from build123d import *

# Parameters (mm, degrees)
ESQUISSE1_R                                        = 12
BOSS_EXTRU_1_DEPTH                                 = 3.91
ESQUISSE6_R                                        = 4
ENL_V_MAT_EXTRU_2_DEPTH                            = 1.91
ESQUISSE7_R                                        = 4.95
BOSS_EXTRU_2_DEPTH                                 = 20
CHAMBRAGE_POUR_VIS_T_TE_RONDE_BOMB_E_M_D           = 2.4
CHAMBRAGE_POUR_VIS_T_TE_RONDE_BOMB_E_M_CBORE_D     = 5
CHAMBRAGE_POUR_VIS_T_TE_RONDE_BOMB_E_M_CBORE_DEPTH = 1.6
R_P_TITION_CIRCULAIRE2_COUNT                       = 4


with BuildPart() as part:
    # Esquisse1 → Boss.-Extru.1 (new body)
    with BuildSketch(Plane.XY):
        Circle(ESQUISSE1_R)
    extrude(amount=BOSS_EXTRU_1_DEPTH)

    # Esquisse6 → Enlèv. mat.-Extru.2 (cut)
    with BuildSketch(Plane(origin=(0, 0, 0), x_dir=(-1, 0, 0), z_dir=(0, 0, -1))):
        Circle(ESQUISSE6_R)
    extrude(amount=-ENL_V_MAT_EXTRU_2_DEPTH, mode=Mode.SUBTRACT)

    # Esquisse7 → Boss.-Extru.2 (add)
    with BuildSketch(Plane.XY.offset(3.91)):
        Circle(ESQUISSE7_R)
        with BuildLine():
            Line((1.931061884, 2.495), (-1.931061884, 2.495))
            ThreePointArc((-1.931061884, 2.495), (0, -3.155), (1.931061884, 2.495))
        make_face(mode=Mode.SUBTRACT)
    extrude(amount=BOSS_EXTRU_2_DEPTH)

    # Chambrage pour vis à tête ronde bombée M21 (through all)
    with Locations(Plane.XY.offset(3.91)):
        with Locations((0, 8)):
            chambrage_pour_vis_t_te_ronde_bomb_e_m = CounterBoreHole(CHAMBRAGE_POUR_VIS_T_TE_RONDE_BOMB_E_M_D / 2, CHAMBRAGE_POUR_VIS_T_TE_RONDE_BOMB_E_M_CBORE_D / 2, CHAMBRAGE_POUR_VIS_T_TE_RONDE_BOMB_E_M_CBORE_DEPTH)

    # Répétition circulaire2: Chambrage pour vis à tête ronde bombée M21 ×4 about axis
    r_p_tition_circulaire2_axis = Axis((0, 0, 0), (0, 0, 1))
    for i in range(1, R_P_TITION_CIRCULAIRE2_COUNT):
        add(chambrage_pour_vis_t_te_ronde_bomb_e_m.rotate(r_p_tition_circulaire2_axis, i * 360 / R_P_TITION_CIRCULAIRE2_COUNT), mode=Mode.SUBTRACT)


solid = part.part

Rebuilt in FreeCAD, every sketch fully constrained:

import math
import FreeCAD as App
import Part
import Sketcher
Q = App.Units.Quantity

doc = App.newDocument("Part")
body = doc.addObject("PartDesign::Body", "Body")

sketch1 = body.newObject("Sketcher::SketchObject", "Sketch")
sketch1.AttachmentSupport = (doc.getObject("XY_Plane"), [""])
sketch1.MapMode = "FlatFace"
sketch1.addGeometry(Part.Circle(App.Vector(0, 0, 0), App.Vector(0, 0, 1), 12), False)
sketch1.addConstraint([
    Sketcher.Constraint("Coincident", 0, 3, -1, 1),
    Sketcher.Constraint("Diameter", 0, Q("24 mm")),
])
pad1 = body.newObject("PartDesign::Pad", "Pad")
pad1.Profile = sketch1
pad1.Length = 3.91

sketch2 = body.newObject("Sketcher::SketchObject", "Sketch001")
sketch2.AttachmentSupport = (doc.getObject("XY_Plane"), [""])
sketch2.MapMode = "FlatFace"
sketch2.addGeometry(Part.Circle(App.Vector(0, 0, 0), App.Vector(0, 0, 1), 4), False)
sketch2.addConstraint([
    Sketcher.Constraint("Coincident", 0, 3, -1, 1),
    Sketcher.Constraint("Diameter", 0, Q("8 mm")),
])
pocket1 = body.newObject("PartDesign::Pocket", "Pocket")
pocket1.Profile = sketch2
pocket1.Length = 1.91
pocket1.Reversed = True

sketch3 = body.newObject("Sketcher::SketchObject", "Sketch002")
sketch3.AttachmentSupport = (doc.getObject("XY_Plane"), [""])
sketch3.MapMode = "FlatFace"
sketch3.AttachmentOffset = App.Placement(App.Vector(0, 0, 3.91), App.Rotation())
sketch3.addGeometry([
    Part.Circle(App.Vector(0, 0, 0), App.Vector(0, 0, 1), 5),
    Part.LineSegment(App.Vector(-1.9, 2.5, 0), App.Vector(1.9, 2.5, 0)),
    Part.ArcOfCircle(Part.Circle(App.Vector(0, 0, 0), App.Vector(0, 0, 1), 3.2), math.radians(128), math.radians(412)),
], False)
sketch3.addConstraint([
    Sketcher.Constraint("Coincident", 1, 1, 2, 1),
    Sketcher.Constraint("Coincident", 2, 2, 1, 2),
    Sketcher.Constraint("Horizontal", 1),
    Sketcher.Constraint("Coincident", 0, 3, -1, 1),
    Sketcher.Constraint("Coincident", 2, 3, -1, 1),
    Sketcher.Constraint("Diameter", 0, Q("9.9 mm")),
    Sketcher.Constraint("Radius", 2, Q("3.155 mm")),
    Sketcher.Constraint("DistanceY", -1, 1, 1, 1, Q("2.495 mm")),
])
pad2 = body.newObject("PartDesign::Pad", "Pad001")
pad2.Profile = sketch3
pad2.Length = 20

sketch4 = body.newObject("Sketcher::SketchObject", "Sketch003")
sketch4.AttachmentSupport = (doc.getObject("XY_Plane"), [""])
sketch4.MapMode = "FlatFace"
sketch4.AttachmentOffset = App.Placement(App.Vector(0, 0, 3.91), App.Rotation())
sketch4.addGeometry(Part.Circle(App.Vector(0, 8, 0), App.Vector(0, 0, 1), 1.2), False)
sketch4.addConstraint([
    Sketcher.Constraint("PointOnObject", 0, 3, -2),
    Sketcher.Constraint("Diameter", 0, Q("2.4 mm")),
    Sketcher.Constraint("DistanceY", -1, 1, 0, 3, Q("8 mm")),
])
doc.recompute()
hole = body.newObject("PartDesign::Hole", "Hole")
hole.Profile = sketch4
hole.ThreadType = "None"
hole.Diameter = 2.4
hole.DepthType = "ThroughAll"
hole.HoleCutType = "Counterbore"
hole.HoleCutDiameter = 5
hole.HoleCutDepth = 1.6
doc.recompute()

polarpattern = body.newObject("PartDesign::PolarPattern", "PolarPattern")
polarpattern.Originals = [hole]
polarpattern.Axis = (doc.getObject("Z_Axis"), [""])
polarpattern.Angle = 360
polarpattern.Occurrences = 4
body.Tip = polarpattern

doc.recompute()
